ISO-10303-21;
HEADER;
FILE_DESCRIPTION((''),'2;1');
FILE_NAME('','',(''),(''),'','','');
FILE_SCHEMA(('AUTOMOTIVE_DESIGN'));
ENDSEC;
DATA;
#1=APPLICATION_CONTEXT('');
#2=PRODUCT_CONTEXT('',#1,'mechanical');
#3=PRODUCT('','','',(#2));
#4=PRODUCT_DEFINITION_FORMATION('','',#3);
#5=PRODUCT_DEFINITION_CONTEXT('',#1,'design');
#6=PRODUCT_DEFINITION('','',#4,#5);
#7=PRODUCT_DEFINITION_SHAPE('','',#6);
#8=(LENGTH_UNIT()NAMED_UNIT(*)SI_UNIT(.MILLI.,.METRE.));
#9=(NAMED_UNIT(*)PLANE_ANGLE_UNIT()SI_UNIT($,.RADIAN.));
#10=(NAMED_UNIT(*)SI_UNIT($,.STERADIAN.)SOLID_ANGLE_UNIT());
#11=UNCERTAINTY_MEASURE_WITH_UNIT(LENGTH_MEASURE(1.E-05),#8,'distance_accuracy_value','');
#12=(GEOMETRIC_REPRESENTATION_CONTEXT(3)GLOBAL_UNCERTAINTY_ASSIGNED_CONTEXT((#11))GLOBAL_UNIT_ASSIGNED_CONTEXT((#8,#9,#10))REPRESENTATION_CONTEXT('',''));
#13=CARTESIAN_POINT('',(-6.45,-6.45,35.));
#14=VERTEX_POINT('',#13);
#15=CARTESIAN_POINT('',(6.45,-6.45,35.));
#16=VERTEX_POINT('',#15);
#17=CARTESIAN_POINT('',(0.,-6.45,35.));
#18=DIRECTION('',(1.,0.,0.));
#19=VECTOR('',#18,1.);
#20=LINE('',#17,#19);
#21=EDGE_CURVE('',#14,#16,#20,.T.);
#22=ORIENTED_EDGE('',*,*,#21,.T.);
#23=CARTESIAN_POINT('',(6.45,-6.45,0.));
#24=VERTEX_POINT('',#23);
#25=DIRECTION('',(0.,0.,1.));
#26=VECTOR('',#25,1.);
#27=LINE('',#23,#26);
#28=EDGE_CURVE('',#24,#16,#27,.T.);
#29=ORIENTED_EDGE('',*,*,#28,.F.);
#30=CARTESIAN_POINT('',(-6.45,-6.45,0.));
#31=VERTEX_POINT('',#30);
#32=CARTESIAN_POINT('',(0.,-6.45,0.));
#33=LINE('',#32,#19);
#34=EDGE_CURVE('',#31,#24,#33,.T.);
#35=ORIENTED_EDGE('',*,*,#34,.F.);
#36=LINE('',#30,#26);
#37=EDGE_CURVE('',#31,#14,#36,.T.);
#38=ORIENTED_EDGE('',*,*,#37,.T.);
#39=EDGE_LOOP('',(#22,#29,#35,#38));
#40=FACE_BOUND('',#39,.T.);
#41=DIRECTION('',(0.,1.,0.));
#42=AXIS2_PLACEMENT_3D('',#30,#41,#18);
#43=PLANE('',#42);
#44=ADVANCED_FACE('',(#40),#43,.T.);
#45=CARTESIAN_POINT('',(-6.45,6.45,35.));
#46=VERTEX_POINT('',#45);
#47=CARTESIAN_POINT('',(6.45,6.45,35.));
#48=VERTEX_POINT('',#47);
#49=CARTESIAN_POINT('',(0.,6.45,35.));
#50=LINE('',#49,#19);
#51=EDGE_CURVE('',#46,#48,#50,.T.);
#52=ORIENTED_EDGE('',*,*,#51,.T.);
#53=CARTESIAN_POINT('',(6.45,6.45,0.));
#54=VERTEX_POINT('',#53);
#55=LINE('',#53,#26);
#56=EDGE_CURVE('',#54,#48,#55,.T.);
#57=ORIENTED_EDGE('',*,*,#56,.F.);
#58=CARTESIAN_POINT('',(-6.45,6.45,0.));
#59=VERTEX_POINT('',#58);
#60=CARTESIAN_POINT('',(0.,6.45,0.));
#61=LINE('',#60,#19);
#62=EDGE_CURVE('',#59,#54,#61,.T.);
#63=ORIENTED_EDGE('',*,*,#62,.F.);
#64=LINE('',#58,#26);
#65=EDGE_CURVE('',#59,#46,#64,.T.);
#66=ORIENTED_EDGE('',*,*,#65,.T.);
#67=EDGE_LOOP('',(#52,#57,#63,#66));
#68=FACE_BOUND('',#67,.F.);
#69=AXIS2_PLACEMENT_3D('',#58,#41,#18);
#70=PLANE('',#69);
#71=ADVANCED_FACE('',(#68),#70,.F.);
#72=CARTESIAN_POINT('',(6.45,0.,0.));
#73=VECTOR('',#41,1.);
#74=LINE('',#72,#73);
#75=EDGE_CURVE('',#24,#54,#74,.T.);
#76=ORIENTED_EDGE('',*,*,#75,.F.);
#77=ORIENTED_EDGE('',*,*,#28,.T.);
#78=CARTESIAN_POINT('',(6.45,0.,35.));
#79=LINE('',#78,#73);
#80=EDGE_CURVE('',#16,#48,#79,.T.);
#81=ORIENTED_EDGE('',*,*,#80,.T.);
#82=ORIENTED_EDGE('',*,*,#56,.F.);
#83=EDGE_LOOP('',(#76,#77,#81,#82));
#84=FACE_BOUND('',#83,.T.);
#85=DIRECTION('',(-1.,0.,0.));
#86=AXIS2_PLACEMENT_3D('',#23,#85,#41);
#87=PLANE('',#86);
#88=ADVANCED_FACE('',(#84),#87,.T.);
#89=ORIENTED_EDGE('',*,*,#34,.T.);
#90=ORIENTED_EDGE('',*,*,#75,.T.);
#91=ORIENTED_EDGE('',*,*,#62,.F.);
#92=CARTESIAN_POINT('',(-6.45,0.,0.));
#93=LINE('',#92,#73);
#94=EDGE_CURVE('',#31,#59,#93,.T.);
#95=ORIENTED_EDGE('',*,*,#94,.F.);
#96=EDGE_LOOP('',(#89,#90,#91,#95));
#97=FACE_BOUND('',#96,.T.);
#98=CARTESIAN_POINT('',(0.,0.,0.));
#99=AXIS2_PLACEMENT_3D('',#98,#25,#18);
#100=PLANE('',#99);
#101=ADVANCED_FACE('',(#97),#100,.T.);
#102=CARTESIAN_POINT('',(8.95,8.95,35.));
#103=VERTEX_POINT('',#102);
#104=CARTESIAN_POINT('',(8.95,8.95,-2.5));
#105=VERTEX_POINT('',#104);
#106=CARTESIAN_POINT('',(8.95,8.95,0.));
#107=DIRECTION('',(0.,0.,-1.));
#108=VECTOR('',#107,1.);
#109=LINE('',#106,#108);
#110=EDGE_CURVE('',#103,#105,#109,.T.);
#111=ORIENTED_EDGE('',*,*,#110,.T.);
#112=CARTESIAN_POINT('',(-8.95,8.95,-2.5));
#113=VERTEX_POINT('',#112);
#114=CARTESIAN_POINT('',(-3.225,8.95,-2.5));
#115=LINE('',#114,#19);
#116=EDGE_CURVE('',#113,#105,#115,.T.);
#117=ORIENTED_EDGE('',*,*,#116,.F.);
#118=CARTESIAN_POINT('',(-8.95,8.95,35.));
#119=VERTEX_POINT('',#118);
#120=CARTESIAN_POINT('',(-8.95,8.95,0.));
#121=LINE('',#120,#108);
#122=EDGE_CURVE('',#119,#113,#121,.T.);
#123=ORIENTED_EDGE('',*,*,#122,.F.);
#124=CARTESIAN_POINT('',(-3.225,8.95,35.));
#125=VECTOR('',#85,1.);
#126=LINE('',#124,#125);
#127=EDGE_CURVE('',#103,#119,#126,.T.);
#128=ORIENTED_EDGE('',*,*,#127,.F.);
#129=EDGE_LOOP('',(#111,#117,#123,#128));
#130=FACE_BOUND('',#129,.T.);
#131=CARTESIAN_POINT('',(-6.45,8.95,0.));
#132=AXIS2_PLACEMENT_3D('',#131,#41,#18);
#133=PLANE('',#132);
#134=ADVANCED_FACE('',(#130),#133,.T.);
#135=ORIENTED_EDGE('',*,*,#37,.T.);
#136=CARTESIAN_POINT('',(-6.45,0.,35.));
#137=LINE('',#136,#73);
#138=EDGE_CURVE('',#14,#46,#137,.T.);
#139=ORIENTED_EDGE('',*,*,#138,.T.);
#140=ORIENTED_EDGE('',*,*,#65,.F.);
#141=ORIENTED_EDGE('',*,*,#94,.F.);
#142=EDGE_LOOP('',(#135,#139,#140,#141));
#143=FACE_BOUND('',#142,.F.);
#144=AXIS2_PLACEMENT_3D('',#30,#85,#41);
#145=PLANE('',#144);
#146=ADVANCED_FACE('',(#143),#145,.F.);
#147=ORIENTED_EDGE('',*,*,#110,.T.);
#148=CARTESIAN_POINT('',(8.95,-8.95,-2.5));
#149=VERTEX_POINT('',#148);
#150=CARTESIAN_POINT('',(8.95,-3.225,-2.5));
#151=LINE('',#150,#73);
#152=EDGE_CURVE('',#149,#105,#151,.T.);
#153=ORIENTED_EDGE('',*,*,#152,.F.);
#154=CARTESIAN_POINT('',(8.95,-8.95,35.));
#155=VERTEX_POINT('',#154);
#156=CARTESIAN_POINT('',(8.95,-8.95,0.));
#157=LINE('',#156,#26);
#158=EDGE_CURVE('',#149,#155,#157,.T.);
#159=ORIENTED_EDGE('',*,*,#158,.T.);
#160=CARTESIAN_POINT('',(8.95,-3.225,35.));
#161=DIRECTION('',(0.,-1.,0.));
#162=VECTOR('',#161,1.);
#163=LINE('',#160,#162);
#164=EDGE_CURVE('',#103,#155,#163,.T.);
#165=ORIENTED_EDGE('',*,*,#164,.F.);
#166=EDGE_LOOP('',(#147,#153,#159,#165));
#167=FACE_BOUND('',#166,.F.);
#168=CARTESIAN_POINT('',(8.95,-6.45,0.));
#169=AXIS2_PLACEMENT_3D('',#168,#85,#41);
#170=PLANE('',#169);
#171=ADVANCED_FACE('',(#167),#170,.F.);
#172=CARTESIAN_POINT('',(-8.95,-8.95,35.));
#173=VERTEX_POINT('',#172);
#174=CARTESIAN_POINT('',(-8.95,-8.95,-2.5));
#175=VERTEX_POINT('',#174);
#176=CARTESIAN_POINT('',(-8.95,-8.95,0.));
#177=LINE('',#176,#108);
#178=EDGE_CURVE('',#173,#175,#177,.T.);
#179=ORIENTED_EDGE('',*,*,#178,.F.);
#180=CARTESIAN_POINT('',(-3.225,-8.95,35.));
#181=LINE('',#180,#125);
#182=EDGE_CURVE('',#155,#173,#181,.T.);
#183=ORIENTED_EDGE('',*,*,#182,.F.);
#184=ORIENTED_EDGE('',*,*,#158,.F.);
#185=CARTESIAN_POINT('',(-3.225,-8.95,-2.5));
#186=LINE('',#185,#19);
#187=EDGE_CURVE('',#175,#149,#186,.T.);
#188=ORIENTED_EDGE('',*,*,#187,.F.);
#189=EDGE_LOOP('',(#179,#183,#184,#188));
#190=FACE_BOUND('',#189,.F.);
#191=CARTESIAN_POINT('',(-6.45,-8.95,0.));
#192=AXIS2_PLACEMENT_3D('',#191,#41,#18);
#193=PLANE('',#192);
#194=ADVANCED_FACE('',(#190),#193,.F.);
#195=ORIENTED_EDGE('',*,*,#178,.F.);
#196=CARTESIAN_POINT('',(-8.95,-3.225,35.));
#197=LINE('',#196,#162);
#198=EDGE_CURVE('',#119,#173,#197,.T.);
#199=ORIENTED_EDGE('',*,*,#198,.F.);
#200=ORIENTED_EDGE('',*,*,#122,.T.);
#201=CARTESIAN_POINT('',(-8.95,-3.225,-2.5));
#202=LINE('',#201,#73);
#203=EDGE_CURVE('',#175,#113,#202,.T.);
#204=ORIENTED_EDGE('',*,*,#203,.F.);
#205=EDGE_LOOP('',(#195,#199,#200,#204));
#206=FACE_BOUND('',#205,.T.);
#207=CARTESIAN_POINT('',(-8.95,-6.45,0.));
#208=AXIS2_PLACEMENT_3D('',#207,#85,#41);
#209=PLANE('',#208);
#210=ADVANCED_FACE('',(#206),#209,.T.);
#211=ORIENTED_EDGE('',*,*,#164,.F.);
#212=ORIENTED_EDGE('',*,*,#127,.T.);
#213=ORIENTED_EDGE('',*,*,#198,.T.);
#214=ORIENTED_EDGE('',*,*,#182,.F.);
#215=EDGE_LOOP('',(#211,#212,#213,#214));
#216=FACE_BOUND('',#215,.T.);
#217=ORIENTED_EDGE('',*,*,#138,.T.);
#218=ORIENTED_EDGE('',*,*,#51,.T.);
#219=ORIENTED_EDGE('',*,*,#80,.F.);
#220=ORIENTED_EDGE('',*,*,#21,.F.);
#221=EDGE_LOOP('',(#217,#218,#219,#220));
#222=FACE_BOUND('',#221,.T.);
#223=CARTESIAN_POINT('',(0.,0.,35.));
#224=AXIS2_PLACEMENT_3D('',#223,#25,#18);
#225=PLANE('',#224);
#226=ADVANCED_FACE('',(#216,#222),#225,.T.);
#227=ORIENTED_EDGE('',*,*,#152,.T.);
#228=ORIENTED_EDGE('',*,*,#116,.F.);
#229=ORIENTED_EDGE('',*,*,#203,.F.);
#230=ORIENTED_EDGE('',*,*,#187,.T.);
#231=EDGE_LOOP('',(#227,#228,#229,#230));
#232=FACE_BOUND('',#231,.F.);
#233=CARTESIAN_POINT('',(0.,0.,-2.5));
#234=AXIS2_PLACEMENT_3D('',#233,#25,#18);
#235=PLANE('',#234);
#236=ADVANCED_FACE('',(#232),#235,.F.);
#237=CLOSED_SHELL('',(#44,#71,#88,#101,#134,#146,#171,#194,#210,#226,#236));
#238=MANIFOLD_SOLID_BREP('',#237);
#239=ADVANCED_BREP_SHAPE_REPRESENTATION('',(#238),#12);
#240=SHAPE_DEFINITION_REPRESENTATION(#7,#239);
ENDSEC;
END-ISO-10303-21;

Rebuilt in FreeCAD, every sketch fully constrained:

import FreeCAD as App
import Part
import Sketcher
from FreeCAD import Vector
Q = App.Units.Quantity


def faces_at(feature, points):
    """Names of the faces that lie closest to the given points."""
    faces = feature.Shape.Faces
    near = lambda p: min(range(len(faces)), key=lambda i: faces[i].distToShape(Part.Vertex(*p))[0])
    return sorted({f"Face{near(p) + 1}" for p in points})

doc = App.newDocument("Part")
params = doc.addObject("Spreadsheet::Sheet", "Params")
for row, (alias, value) in enumerate([
    ("sketch1_width", "12.9 mm"),
    ("pad1_length", "35 mm"),
    ("thickness_wall", "2.5 mm"),
], start=1):
    params.set(f"A{row}", alias)
    params.set(f"B{row}", "=" + value)
    params.setAlias(f"B{row}", alias)

body = doc.addObject("PartDesign::Body", "Body")

# Sketch on XY plane
sketch1 = doc.addObject("Sketcher::SketchObject", "Sketch")
body.addObject(sketch1)
sketch1.AttachmentSupport = (doc.XY_Plane, [""])
sketch1.MapMode = "FlatFace"
sketch1.addGeometry([
    Part.LineSegment(Vector(-6.45, 6.45, 0), Vector(-6.45, -6.45, 0)),
    Part.LineSegment(Vector(-6.45, -6.45, 0), Vector(6.45, -6.45, 0)),
    Part.LineSegment(Vector(6.45, -6.45, 0), Vector(6.45, 6.45, 0)),
    Part.LineSegment(Vector(6.45, 6.45, 0), Vector(-6.45, 6.45, 0)),
], False)
sketch1.addConstraint([
    Sketcher.Constraint("Coincident", 0, 2, 1, 1),
    Sketcher.Constraint("Coincident", 1, 2, 2, 1),
    Sketcher.Constraint("Coincident", 2, 2, 3, 1),
    Sketcher.Constraint("Coincident", 3, 2, 0, 1),
    Sketcher.Constraint("Vertical", 0),
    Sketcher.Constraint("Horizontal", 1),
    Sketcher.Constraint("Vertical", 2),
    Sketcher.Constraint("Horizontal", 3),
    Sketcher.Constraint("Symmetric", 0, 2, 2, 2, -1, 1),
    Sketcher.Constraint("Equal", 3, 0),
    Sketcher.Constraint("DistanceX", 1, 1, 1, 2, Q("12.9 mm")),
])
sketch1.setExpression("Constraints[10]", "Params.sketch1_width")
pad1 = doc.addObject("PartDesign::Pad", "Pad")
body.addObject(pad1)
pad1.Profile = sketch1
pad1.setExpression("Length", "Params.pad1_length")
doc.recompute()

thickness = doc.addObject("PartDesign::Thickness", "Thickness")
body.addObject(thickness)
thickness.Base = (pad1, faces_at(pad1, [(0, 0, 35)]))
thickness.setExpression("Value", "Params.thickness_wall")
thickness.Reversed = False
thickness.Join = "Intersection"

doc.recompute()
